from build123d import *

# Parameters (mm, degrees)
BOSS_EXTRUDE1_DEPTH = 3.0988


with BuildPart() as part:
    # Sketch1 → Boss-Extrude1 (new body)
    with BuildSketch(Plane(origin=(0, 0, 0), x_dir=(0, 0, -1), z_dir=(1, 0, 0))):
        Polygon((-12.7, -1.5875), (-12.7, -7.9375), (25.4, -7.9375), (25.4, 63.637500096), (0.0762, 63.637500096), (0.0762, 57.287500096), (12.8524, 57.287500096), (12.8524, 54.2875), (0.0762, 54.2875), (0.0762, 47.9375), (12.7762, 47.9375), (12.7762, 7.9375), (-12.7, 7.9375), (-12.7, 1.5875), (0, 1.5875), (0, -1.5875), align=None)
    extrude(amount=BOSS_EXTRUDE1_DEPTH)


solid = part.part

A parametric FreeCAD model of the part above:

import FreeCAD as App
import Part
import Sketcher

V = App.Vector
Q = App.Units.Quantity


def add_polygon(sketch, points):
    """Adds a closed chain of lines whose ends are joined by coincident constraints."""
    first, n = sketch.GeometryCount, len(points)
    for a, b in zip(points, points[1:] + points[:1]):
        sketch.addGeometry(Part.LineSegment(App.Vector(*a, 0), App.Vector(*b, 0)), False)
    for i in range(n):
        sketch.addConstraint(Sketcher.Constraint("Coincident", first + i, 2, first + (i + 1) % n, 1))

doc = App.newDocument("Part")
params = doc.addObject("Spreadsheet::Sheet", "Params")
for row, (alias, value) in enumerate([
    ("sketch1_height", "1.5 in"),
    ("sketch1_height2", "0.5 in"),
    ("sketch1_width", "0.25 in"),
    ("sketch1_width2", "0.125 in"),
    ("sketch1_height3", "0.997 in"),
    ("pad1_length", "0.122 in"),
], start=1):
    params.set(f"A{row}", alias)
    params.set(f"B{row}", "=" + value)
    params.setAlias(f"B{row}", alias)

body = doc.addObject("PartDesign::Body", "Body")

sketch1 = doc.addObject("Sketcher::SketchObject", "Sketch")
body.addObject(sketch1)
sketch1.AttachmentSupport = (doc.YZ_Plane, [""])
sketch1.MapMode = "FlatFace"
add_polygon(sketch1, [(-1.6, 12.7), (-7.9, 12.7), (-7.9, -25.4), (63.6, -25.4), (63.6, -0.1), (57.3, -0.1), (57.3, -12.9), (54.3, -12.9), (54.3, -0.1), (47.9, -0.1), (47.9, -12.8), (7.9, -12.8), (7.9, 12.7), (1.6, 12.7), (1.6, 0), (-1.6, 0)])
sketch1.addConstraint(Sketcher.Constraint("Horizontal", 0))
sketch1.addConstraint(Sketcher.Constraint("Vertical", 1))
sketch1.addConstraint(Sketcher.Constraint("Horizontal", 2))
sketch1.addConstraint(Sketcher.Constraint("Vertical", 3))
sketch1.addConstraint(Sketcher.Constraint("Horizontal", 4))
sketch1.addConstraint(Sketcher.Constraint("Vertical", 5))
sketch1.addConstraint(Sketcher.Constraint("Horizontal", 6))
sketch1.addConstraint(Sketcher.Constraint("Vertical", 7))
sketch1.addConstraint(Sketcher.Constraint("Horizontal", 8))
sketch1.addConstraint(Sketcher.Constraint("Vertical", 9))
sketch1.addConstraint(Sketcher.Constraint("Horizontal", 10))
sketch1.addConstraint(Sketcher.Constraint("Vertical", 11))
sketch1.addConstraint(Sketcher.Constraint("Horizontal", 12))
sketch1.addConstraint(Sketcher.Constraint("Vertical", 13))
sketch1.addConstraint(Sketcher.Constraint("Horizontal", 14))
sketch1.addConstraint(Sketcher.Constraint("Vertical", 15))
sketch1.addConstraint(Sketcher.Constraint("Symmetric", 13, 2, 14, 2, -1, 1))
sketch1.addConstraint(Sketcher.Constraint("Symmetric", 0, 2, 11, 2, -2))
sketch1.addConstraint(Sketcher.Constraint("Horizontal", 4, 2, 7, 2))
sketch1.addConstraint(Sketcher.Constraint("Equal", 0, 4))
sketch1.addConstraint(Sketcher.Constraint("Equal", 4, 8))
sketch1.addConstraint(Sketcher.Constraint("Equal", 9, 13))
sketch1.addConstraint(Sketcher.Constraint("DistanceY", 1, 2, 1, 1, Q("1.5 in")))
sketch1.addConstraint(Sketcher.Constraint("DistanceY", 9, 2, 9, 1, Q("0.5 in")))
sketch1.addConstraint(Sketcher.Constraint("DistanceX", 0, 2, 0, 1, Q("0.25 in")))
sketch1.addConstraint(Sketcher.Constraint("DistanceX", 14, 2, 14, 1, Q("0.125 in")))
sketch1.addConstraint(Sketcher.Constraint("DistanceY", 3, 1, 3, 2, Q("0.997 in")))
sketch1.addConstraint(Sketcher.Constraint("DistanceY", 5, 2, 5, 1, Q("0.503 in")))
sketch1.addConstraint(Sketcher.Constraint("DistanceX", 2, 1, 2, 2, 71.575))
sketch1.addConstraint(Sketcher.Constraint("DistanceX", 6, 2, 6, 1, 3.0))
sketch1.setExpression("Constraints[38]", "Params.sketch1_height")
sketch1.setExpression("Constraints[39]", "Params.sketch1_height2")
sketch1.setExpression("Constraints[40]", "Params.sketch1_width")
sketch1.setExpression("Constraints[41]", "Params.sketch1_width2")
sketch1.setExpression("Constraints[42]", "Params.sketch1_height3")
pad1 = doc.addObject("PartDesign::Pad", "Pad")
body.addObject(pad1)
pad1.Profile = sketch1
pad1.setExpression("Length", "Params.pad1_length")

doc.recompute()
